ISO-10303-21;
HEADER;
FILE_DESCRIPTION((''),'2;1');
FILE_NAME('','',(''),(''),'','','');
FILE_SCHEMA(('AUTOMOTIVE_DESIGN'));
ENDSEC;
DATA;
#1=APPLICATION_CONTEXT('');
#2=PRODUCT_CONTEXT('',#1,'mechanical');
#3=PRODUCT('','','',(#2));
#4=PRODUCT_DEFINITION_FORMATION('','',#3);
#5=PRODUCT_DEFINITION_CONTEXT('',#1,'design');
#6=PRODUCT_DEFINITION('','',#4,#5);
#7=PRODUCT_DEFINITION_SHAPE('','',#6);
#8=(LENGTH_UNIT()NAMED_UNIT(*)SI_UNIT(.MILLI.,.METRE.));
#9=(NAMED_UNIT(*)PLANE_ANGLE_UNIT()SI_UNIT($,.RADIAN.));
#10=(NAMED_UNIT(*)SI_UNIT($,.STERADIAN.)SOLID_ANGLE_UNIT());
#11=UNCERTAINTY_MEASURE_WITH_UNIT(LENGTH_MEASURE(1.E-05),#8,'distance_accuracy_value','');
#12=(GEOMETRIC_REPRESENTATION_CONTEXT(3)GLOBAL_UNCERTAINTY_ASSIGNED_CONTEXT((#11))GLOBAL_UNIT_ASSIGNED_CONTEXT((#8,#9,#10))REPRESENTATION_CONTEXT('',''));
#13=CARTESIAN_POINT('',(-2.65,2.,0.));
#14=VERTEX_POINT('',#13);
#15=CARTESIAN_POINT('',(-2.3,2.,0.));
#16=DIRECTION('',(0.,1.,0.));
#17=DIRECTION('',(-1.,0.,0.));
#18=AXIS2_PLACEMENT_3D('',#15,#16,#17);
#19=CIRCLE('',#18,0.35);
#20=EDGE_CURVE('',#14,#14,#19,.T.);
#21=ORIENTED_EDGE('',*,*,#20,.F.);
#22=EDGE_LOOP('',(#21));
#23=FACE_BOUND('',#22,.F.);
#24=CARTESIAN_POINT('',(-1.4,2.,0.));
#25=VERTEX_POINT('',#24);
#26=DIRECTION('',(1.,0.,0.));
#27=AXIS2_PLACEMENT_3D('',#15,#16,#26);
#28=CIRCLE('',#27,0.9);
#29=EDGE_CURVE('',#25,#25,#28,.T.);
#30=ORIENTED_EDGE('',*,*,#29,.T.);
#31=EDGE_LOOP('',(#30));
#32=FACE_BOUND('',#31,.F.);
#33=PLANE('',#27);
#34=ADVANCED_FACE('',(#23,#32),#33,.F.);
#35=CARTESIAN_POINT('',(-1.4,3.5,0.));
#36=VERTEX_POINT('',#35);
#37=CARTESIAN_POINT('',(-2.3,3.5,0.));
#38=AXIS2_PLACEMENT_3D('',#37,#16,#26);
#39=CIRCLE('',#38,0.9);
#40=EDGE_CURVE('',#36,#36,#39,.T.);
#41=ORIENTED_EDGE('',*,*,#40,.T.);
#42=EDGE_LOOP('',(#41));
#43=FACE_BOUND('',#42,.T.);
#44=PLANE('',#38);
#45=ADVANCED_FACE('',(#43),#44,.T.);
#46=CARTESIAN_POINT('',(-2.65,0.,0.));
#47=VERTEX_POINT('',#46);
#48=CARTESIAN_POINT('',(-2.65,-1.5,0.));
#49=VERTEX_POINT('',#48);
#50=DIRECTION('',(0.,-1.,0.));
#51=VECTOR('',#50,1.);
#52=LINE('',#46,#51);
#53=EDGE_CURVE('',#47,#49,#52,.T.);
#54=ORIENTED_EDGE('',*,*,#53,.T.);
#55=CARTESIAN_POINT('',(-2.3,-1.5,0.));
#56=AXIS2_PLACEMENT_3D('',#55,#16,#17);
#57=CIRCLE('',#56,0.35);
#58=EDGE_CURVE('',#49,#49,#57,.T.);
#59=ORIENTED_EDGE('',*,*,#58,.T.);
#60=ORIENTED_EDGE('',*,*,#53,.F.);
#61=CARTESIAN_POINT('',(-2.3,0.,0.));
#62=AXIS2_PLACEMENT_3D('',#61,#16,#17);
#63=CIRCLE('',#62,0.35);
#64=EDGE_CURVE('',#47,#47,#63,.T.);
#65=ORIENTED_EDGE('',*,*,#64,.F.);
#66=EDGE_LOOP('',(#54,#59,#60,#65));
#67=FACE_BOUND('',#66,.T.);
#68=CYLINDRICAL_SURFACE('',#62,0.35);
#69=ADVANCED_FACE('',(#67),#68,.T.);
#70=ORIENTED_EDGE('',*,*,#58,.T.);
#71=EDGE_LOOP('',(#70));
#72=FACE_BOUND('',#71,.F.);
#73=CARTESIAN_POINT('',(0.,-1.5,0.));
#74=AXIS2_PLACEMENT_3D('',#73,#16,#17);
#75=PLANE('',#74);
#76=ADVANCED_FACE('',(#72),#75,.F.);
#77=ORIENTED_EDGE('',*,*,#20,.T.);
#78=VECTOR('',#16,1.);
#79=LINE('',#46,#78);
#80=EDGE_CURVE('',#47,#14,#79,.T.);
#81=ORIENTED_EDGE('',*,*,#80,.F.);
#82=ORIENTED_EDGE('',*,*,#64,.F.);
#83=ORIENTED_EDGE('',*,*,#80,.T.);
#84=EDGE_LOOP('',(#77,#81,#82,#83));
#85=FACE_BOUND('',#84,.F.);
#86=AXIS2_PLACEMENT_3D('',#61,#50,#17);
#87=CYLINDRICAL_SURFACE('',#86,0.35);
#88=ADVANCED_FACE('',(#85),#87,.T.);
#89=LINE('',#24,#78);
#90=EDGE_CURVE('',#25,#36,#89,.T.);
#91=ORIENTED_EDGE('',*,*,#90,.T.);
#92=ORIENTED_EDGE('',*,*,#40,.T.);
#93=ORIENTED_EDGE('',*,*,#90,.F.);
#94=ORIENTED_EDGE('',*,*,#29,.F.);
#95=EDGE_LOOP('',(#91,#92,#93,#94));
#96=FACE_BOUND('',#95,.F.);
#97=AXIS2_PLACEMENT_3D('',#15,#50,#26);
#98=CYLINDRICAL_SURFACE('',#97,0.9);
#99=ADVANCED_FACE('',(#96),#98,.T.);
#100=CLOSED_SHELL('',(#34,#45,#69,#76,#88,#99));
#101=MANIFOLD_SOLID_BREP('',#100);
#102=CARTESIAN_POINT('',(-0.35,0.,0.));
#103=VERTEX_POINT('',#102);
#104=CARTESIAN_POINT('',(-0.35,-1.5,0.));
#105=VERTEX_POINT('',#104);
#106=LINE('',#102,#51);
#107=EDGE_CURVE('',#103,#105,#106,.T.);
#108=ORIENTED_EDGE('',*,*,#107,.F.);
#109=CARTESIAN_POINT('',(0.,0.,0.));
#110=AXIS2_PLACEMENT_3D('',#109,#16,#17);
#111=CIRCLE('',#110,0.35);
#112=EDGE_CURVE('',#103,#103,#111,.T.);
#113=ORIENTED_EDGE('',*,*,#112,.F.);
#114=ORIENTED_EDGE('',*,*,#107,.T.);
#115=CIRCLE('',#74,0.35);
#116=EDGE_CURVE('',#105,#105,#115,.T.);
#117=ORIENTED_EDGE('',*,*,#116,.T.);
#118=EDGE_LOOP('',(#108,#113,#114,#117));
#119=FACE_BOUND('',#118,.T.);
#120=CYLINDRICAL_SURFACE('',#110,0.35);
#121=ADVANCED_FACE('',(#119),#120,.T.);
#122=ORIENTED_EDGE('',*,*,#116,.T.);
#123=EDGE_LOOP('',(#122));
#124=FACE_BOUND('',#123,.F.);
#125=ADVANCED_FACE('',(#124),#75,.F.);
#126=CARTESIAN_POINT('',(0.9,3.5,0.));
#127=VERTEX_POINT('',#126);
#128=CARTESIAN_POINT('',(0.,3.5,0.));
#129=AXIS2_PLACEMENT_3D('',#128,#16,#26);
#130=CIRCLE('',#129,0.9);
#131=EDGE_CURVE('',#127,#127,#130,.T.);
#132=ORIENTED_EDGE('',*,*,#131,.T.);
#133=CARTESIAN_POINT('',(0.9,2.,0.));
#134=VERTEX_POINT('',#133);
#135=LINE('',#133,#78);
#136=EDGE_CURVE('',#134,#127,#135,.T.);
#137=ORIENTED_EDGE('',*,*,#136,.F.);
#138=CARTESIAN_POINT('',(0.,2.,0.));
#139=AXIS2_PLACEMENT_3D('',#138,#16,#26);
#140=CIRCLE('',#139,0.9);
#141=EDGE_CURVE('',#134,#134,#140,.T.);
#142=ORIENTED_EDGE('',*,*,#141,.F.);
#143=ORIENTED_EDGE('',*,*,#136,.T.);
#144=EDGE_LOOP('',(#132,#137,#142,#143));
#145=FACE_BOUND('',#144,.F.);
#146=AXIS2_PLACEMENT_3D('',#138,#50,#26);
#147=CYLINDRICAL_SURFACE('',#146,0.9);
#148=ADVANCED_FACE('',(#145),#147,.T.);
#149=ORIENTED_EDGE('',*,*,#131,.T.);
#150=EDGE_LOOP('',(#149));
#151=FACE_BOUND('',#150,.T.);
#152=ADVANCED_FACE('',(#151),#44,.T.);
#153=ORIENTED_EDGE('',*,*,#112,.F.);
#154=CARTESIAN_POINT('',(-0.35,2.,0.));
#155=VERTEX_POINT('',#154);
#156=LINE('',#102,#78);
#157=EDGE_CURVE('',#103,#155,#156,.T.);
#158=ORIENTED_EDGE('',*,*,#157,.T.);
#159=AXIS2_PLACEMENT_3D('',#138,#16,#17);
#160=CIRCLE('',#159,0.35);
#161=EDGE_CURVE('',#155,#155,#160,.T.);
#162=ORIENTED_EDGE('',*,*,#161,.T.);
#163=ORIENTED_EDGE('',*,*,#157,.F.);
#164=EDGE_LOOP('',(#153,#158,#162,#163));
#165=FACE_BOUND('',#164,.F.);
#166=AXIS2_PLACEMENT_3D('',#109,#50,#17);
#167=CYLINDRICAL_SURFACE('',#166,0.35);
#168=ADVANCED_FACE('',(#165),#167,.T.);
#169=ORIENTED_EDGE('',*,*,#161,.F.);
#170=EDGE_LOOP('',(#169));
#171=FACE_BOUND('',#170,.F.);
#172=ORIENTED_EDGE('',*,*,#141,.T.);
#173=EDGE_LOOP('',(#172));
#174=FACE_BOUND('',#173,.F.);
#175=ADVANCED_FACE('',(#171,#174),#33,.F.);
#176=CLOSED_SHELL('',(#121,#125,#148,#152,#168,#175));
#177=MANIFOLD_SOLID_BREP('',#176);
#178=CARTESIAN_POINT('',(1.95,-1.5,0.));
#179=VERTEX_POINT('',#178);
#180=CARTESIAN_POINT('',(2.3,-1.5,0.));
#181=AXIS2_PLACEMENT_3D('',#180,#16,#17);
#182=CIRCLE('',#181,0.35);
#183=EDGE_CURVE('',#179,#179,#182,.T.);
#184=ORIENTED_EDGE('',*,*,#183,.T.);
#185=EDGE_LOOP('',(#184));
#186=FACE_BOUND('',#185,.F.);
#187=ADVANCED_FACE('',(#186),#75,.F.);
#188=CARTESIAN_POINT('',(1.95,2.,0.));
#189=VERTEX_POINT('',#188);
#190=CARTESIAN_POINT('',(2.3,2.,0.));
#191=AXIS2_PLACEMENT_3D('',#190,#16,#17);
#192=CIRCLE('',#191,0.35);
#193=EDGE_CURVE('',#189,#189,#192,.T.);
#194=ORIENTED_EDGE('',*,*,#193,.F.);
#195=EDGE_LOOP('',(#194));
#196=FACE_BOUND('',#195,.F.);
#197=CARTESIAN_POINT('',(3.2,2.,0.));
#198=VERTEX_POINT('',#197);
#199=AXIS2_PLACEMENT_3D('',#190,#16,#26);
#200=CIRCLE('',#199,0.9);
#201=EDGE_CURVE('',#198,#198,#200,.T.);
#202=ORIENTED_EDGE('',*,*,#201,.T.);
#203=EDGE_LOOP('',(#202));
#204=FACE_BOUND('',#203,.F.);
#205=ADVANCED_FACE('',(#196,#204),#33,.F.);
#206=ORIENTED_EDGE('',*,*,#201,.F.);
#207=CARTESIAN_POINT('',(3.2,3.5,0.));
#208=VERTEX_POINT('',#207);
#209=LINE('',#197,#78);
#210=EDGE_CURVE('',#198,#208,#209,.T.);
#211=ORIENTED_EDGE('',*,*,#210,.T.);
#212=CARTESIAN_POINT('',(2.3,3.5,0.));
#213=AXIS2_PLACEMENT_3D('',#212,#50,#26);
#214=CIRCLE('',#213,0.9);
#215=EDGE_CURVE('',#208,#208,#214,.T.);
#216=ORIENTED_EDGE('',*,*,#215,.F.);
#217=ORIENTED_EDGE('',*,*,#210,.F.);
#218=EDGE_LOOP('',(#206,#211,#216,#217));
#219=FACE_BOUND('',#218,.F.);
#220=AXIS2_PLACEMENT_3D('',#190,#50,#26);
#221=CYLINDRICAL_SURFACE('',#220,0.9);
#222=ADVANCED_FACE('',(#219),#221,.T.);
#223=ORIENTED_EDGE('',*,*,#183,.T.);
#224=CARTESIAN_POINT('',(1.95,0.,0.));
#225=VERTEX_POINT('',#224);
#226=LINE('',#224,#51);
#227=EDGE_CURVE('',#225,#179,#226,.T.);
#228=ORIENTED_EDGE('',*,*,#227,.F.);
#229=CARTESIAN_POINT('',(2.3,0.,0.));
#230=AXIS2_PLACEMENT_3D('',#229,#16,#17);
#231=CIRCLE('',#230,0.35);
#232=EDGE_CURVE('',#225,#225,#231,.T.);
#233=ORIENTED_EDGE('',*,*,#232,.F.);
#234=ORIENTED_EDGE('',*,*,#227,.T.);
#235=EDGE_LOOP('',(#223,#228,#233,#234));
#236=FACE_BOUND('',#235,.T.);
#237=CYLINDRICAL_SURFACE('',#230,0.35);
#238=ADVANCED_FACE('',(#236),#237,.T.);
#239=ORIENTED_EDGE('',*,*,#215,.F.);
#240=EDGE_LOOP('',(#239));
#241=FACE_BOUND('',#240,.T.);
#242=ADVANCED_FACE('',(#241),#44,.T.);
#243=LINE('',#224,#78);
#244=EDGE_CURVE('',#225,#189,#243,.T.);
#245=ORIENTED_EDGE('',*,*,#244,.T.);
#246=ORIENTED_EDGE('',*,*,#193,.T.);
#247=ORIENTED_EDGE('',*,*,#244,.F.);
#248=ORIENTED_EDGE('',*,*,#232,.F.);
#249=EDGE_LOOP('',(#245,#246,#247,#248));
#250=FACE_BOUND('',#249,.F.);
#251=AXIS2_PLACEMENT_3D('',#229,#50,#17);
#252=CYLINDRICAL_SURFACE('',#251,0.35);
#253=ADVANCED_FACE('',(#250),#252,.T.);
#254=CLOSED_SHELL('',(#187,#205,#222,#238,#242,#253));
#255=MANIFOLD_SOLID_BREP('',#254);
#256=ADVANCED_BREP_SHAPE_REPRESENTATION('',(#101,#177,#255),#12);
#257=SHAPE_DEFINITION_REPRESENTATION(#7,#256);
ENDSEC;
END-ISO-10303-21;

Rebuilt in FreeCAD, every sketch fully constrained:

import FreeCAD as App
import Part
import Sketcher

V = App.Vector

doc = App.newDocument("Part")
body = doc.addObject("PartDesign::Body", "Body")
body.AllowCompound = True

# Sketch on XZ plane
sketch1 = body.newObject("Sketcher::SketchObject", "Sketch")
sketch1.AttachmentSupport = (doc.getObject("XZ_Plane"), [""])
sketch1.MapMode = "FlatFace"
sketch1.addGeometry([
    Part.Circle(V(-2.3, 0, 0), V(0, 0, 1), 0.35),
    Part.Circle(V(0, 0, 0), V(0, 0, 1), 0.35),
    Part.Circle(V(2.3, 0, 0), V(0, 0, 1), 0.35),
], False)
sketch1.addConstraint([
    Sketcher.Constraint("Coincident", 1, 3, -1, 1),
    Sketcher.Constraint("Equal", 0, 1),
    Sketcher.Constraint("Equal", 1, 2),
    Sketcher.Constraint("Symmetric", 0, 3, 2, 3, -1, 1),
    Sketcher.Constraint("PointOnObject", 0, 3, -1),
    Sketcher.Constraint("Diameter", 0, 0.7),
    Sketcher.Constraint("DistanceX", 0, 3, 2, 3, 4.6),
])
pad1 = body.newObject("PartDesign::Pad", "Pad")
pad1.Profile = sketch1
pad1.Type = "TwoLengths"
pad1.Length = 2
pad1.Length2 = 1.5
pad1.Reversed = True

# Sketch on XZ plane
sketch2 = body.newObject("Sketcher::SketchObject", "Sketch001")
sketch2.AttachmentSupport = (doc.getObject("XZ_Plane"), [""])
sketch2.MapMode = "FlatFace"
sketch2.AttachmentOffset = App.Placement(V(0, 0, -2), App.Rotation())
sketch2.addGeometry([
    Part.Circle(V(-2.3, 0, 0), V(0, 0, 1), 0.9),
    Part.Circle(V(0, 0, 0), V(0, 0, 1), 0.9),
    Part.Circle(V(2.3, 0, 0), V(0, 0, 1), 0.9),
], False)
sketch2.addConstraint([
    Sketcher.Constraint("Coincident", 1, 3, -1, 1),
    Sketcher.Constraint("Equal", 0, 1),
    Sketcher.Constraint("Equal", 1, 2),
    Sketcher.Constraint("Symmetric", 0, 3, 2, 3, -1, 1),
    Sketcher.Constraint("PointOnObject", 0, 3, -1),
    Sketcher.Constraint("Diameter", 0, 1.8),
    Sketcher.Constraint("DistanceX", 0, 3, -1, 1, 2.3),
])
pad2 = body.newObject("PartDesign::Pad", "Pad001")
pad2.Profile = sketch2
pad2.Length = 1.5
pad2.Reversed = True

doc.recompute()
